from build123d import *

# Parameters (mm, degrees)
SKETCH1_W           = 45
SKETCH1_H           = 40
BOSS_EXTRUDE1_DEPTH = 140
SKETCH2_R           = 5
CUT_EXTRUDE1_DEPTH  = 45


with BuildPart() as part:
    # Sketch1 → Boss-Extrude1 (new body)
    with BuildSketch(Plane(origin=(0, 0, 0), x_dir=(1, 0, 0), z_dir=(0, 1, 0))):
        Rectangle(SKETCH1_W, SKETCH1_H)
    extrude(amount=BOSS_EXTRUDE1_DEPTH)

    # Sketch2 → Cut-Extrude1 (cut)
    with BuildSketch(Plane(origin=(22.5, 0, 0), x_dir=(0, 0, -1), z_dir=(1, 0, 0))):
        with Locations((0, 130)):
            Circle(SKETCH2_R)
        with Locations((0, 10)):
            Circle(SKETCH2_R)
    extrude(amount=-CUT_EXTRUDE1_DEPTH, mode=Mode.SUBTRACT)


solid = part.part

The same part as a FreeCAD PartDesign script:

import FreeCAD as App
import Part
import Sketcher

V = App.Vector
Q = App.Units.Quantity

doc = App.newDocument("Part")
body = doc.addObject("PartDesign::Body", "Body")

# Sketch on XZ plane
sketch1 = doc.addObject("Sketcher::SketchObject", "Sketch")
body.addObject(sketch1)
sketch1.AttachmentSupport = (doc.XZ_Plane, [""])
sketch1.MapMode = "FlatFace"
sketch1.addGeometry([
    Part.LineSegment(V(-22.5, -20, 0), V(-22.5, 20, 0)),
    Part.LineSegment(V(-22.5, 20, 0), V(22.5, 20, 0)),
    Part.LineSegment(V(22.5, 20, 0), V(22.5, -20, 0)),
    Part.LineSegment(V(22.5, -20, 0), V(-22.5, -20, 0)),
], False)
sketch1.addConstraint([
    Sketcher.Constraint("Coincident", 0, 2, 1, 1),
    Sketcher.Constraint("Coincident", 1, 2, 2, 1),
    Sketcher.Constraint("Coincident", 2, 2, 3, 1),
    Sketcher.Constraint("Coincident", 3, 2, 0, 1),
    Sketcher.Constraint("Vertical", 0),
    Sketcher.Constraint("Horizontal", 1),
    Sketcher.Constraint("Vertical", 2),
    Sketcher.Constraint("Horizontal", 3),
    Sketcher.Constraint("Symmetric", 0, 2, 2, 2, -1, 1),
    Sketcher.Constraint("DistanceX", 1, 1, 1, 2, Q("45 mm")),
    Sketcher.Constraint("DistanceY", 0, 1, 0, 2, Q("40 mm")),
])
pad1 = doc.addObject("PartDesign::Pad", "Pad")
body.addObject(pad1)
pad1.Profile = sketch1
pad1.Length = 140
pad1.Reversed = True

# Sketch on YZ plane
sketch2 = doc.addObject("Sketcher::SketchObject", "Sketch001")
body.addObject(sketch2)
sketch2.AttachmentSupport = (doc.YZ_Plane, [""])
sketch2.MapMode = "FlatFace"
sketch2.AttachmentOffset = App.Placement(V(0, 0, 22.5), App.Rotation())
sketch2.addGeometry([
    Part.Circle(V(130, 0, 0), V(0, 0, 1), 5),
    Part.Circle(V(10, 0, 0), V(0, 0, 1), 5),
], False)
sketch2.addConstraint([
    Sketcher.Constraint("Equal", 0, 1),
    Sketcher.Constraint("PointOnObject", 0, 3, -1),
    Sketcher.Constraint("PointOnObject", 1, 3, -1),
    Sketcher.Constraint("Diameter", 0, Q("10 mm")),
    Sketcher.Constraint("DistanceX", -1, 1, 0, 3, Q("130 mm")),
    Sketcher.Constraint("DistanceX", -1, 1, 1, 3, Q("10 mm")),
])
pocket1 = doc.addObject("PartDesign::Pocket", "Pocket")
body.addObject(pocket1)
pocket1.Profile = sketch2
pocket1.Length = 45

doc.recompute()
